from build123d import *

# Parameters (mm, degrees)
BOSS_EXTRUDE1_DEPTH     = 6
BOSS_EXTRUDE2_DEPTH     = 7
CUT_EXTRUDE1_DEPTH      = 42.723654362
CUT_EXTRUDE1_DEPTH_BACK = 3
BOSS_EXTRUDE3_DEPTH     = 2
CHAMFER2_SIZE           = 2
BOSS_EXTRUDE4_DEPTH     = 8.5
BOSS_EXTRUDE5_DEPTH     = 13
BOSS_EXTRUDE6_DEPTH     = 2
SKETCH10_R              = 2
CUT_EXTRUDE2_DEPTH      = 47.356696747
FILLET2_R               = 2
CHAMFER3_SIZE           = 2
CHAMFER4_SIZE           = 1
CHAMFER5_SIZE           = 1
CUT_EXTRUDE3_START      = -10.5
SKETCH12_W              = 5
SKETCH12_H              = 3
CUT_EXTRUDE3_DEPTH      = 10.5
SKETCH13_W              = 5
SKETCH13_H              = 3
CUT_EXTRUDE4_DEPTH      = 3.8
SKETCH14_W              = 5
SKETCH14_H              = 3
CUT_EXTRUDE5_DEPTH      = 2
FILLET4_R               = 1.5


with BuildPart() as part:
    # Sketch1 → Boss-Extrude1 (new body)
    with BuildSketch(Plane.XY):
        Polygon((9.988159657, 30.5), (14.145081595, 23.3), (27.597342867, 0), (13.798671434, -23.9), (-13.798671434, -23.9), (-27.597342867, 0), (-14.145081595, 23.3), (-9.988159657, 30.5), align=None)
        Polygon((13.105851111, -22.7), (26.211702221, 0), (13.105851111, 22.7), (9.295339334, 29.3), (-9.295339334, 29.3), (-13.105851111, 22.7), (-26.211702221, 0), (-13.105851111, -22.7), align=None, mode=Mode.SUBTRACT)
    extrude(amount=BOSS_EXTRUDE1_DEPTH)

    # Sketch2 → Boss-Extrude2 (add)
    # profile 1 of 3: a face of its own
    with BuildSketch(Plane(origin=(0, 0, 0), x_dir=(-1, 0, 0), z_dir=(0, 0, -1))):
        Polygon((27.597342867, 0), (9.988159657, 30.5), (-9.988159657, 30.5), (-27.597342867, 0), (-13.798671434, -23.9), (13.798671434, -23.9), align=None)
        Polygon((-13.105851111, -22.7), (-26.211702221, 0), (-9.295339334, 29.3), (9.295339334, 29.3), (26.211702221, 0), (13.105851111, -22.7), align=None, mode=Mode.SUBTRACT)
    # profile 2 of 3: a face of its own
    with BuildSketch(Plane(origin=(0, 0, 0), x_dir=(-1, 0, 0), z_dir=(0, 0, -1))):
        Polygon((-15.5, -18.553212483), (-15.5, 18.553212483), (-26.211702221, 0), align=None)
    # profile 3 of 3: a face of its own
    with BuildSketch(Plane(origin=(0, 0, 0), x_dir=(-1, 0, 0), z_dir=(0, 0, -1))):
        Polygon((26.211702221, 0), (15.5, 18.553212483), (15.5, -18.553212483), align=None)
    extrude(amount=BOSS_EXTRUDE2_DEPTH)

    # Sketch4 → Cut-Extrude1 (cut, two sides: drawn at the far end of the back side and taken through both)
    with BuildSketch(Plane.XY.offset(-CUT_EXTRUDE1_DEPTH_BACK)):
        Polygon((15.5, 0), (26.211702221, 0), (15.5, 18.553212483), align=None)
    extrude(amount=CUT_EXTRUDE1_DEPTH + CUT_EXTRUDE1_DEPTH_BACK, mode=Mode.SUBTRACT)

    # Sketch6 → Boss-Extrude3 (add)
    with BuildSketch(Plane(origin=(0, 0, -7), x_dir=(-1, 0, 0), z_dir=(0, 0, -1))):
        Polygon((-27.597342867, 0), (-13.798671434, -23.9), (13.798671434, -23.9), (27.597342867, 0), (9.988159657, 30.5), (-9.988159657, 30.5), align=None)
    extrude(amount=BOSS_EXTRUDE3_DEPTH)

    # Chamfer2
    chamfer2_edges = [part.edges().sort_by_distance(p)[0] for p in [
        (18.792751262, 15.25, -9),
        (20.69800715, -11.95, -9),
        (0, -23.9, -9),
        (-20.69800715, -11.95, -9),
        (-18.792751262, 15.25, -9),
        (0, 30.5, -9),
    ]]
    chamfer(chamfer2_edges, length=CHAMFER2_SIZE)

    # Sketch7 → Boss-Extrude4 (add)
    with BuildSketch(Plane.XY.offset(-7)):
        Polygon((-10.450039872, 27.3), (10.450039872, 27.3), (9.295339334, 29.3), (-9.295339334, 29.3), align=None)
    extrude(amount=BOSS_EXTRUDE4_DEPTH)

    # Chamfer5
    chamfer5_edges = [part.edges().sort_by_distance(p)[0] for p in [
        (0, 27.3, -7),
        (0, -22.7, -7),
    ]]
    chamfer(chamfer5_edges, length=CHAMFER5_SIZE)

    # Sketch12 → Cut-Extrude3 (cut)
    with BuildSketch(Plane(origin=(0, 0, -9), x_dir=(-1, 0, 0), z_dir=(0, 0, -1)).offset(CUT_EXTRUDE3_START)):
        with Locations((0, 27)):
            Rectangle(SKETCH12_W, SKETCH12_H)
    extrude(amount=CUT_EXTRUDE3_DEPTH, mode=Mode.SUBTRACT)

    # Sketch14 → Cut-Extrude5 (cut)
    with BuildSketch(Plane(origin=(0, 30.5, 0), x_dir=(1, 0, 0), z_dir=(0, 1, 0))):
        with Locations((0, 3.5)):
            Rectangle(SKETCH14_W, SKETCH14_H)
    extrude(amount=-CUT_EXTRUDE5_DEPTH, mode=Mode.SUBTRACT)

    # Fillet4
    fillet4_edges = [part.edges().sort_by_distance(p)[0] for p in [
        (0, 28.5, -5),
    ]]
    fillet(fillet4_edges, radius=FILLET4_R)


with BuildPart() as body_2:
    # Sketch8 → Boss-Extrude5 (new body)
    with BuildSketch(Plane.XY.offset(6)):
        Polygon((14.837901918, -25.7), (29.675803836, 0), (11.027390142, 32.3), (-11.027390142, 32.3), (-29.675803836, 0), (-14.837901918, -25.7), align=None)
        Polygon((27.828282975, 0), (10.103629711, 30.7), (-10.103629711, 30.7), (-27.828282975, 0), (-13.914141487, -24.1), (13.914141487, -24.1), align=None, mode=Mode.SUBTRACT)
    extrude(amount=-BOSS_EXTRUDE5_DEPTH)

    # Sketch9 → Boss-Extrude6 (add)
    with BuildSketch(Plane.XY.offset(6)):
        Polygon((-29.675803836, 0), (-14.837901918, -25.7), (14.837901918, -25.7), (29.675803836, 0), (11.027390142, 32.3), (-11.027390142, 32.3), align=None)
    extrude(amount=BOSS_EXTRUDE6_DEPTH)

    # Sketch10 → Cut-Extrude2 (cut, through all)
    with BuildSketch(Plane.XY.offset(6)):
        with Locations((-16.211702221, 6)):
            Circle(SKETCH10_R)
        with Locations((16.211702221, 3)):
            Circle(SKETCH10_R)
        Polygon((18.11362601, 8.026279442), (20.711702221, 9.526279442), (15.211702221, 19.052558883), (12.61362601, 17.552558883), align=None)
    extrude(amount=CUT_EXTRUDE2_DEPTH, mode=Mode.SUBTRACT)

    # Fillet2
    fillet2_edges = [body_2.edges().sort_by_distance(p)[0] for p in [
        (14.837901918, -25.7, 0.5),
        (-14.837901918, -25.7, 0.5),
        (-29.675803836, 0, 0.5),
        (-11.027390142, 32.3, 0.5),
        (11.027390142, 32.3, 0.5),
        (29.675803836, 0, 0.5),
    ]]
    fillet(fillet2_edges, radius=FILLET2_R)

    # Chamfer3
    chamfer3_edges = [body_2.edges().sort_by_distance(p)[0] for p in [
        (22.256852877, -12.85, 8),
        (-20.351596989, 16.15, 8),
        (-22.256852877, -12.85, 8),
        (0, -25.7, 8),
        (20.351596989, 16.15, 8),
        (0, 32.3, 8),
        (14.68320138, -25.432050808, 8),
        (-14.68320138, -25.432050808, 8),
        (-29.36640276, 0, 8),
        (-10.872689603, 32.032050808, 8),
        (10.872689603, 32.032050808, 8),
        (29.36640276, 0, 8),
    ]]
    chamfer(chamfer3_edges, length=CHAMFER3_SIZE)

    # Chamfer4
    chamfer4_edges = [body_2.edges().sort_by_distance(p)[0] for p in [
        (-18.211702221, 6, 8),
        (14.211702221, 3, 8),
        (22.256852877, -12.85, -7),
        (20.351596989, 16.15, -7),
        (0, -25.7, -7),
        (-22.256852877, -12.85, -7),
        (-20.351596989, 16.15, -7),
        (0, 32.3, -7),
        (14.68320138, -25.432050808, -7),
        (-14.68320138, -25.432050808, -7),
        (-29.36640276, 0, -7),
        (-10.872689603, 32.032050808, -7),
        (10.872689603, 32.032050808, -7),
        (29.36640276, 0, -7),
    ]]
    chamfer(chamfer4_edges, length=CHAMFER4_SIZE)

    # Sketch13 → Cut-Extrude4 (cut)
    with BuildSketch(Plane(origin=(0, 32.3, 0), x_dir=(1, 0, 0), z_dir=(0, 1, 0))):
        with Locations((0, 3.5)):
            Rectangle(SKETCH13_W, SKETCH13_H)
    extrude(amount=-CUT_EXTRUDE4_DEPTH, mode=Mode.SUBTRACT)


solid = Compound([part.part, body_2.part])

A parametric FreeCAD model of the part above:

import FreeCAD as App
import Part
import Sketcher
Q = App.Units.Quantity


def edges_at(feature, points):
    """Names of the edges that pass closest to the given points."""
    edges = feature.Shape.Edges
    near = lambda p: min(range(len(edges)), key=lambda i: edges[i].distToShape(Part.Vertex(*p))[0])
    return sorted({f"Edge{near(p) + 1}" for p in points})

doc = App.newDocument("Part")
body = doc.addObject("PartDesign::Body", "Body")

sketch1 = doc.addObject("Sketcher::SketchObject", "Sketch")
body.addObject(sketch1)
sketch1.AttachmentSupport = (doc.XY_Plane, [""])
sketch1.MapMode = "FlatFace"
sketch1.addGeometry([
    Part.LineSegment(App.Vector(14, 23, 0), App.Vector(10, 30, 0)),
    Part.LineSegment(App.Vector(10, 30, 0), App.Vector(-10, 30, 0)),
    Part.LineSegment(App.Vector(-10, 30, 0), App.Vector(-14, 23, 0)),
    Part.LineSegment(App.Vector(-14, 23, 0), App.Vector(-28, 0, 0)),
    Part.LineSegment(App.Vector(-28, 0, 0), App.Vector(-14, -24, 0)),
    Part.LineSegment(App.Vector(-14, -24, 0), App.Vector(14, -24, 0)),
    Part.LineSegment(App.Vector(14, -24, 0), App.Vector(28, 0, 0)),
    Part.LineSegment(App.Vector(28, 0, 0), App.Vector(14, 23, 0)),
    Part.LineSegment(App.Vector(13, -23, 0), App.Vector(-13, -23, 0)),
    Part.LineSegment(App.Vector(-13, -23, 0), App.Vector(-26, 0, 0)),
    Part.LineSegment(App.Vector(-26, 0, 0), App.Vector(-13, 23, 0)),
    Part.LineSegment(App.Vector(-13, 23, 0), App.Vector(-9, 29, 0)),
    Part.LineSegment(App.Vector(-9, 29, 0), App.Vector(9, 29, 0)),
    Part.LineSegment(App.Vector(9, 29, 0), App.Vector(13, 23, 0)),
    Part.LineSegment(App.Vector(13, 23, 0), App.Vector(26, 0, 0)),
    Part.LineSegment(App.Vector(26, 0, 0), App.Vector(13, -23, 0)),
], False)
sketch1.addConstraint([
    Sketcher.Constraint("Coincident", 0, 2, 1, 1),
    Sketcher.Constraint("Coincident", 1, 2, 2, 1),
    Sketcher.Constraint("Coincident", 2, 2, 3, 1),
    Sketcher.Constraint("Coincident", 3, 2, 4, 1),
    Sketcher.Constraint("Coincident", 4, 2, 5, 1),
    Sketcher.Constraint("Coincident", 5, 2, 6, 1),
    Sketcher.Constraint("Coincident", 6, 2, 7, 1),
    Sketcher.Constraint("Coincident", 7, 2, 0, 1),
    Sketcher.Constraint("Coincident", 8, 2, 9, 1),
    Sketcher.Constraint("Coincident", 9, 2, 10, 1),
    Sketcher.Constraint("Coincident", 10, 2, 11, 1),
    Sketcher.Constraint("Coincident", 11, 2, 12, 1),
    Sketcher.Constraint("Coincident", 12, 2, 13, 1),
    Sketcher.Constraint("Coincident", 13, 2, 14, 1),
    Sketcher.Constraint("Coincident", 14, 2, 15, 1),
    Sketcher.Constraint("Coincident", 15, 2, 8, 1),
    Sketcher.Constraint("Horizontal", 1),
    Sketcher.Constraint("Horizontal", 5),
    Sketcher.Constraint("Horizontal", 8),
    Sketcher.Constraint("Horizontal", 12),
    Sketcher.Constraint("Symmetric", 3, 2, 6, 2, -1, 1),
    Sketcher.Constraint("Symmetric", 8, 2, 13, 2, -1, 1),
    Sketcher.Constraint("Symmetric", 9, 2, 14, 2, -1, 1),
    Sketcher.Constraint("Symmetric", 10, 2, 15, 2, -1, 1),
    Sketcher.Constraint("Symmetric", 2, 2, 7, 2, -2),
    Sketcher.Constraint("PointOnObject", 3, 2, -1),
    Sketcher.Constraint("PointOnObject", 9, 2, -1),
    Sketcher.Constraint("Parallel", 2, 3),
    Sketcher.Constraint("Parallel", 0, 4),
    Sketcher.Constraint("Parallel", 3, 6),
    Sketcher.Constraint("Parallel", 4, 7),
    Sketcher.Constraint("Parallel", 7, 9),
    Sketcher.Constraint("Parallel", 6, 10),
    Sketcher.Constraint("Parallel", 10, 11),
    Sketcher.Constraint("Parallel", 9, 13),
    Sketcher.Constraint("Angle", 0, Q("120 deg")),
    Sketcher.Constraint("DistanceY", 8, 2, 2, 2, 46.0),
    Sketcher.Constraint("DistanceY", 2, 2, 11, 2, 6.0),
    Sketcher.Constraint("DistanceY", -1, 1, 0, 2, 30.5),
    Sketcher.Constraint("DistanceY", -1, 1, 2, 2, 23.3),
    Sketcher.Constraint("DistanceY", 4, 2, -1, 1, 23.9),
    Sketcher.Constraint("DistanceX", 1, 2, 1, 1, 19.976319),
    Sketcher.Constraint("DistanceX", 12, 1, 12, 2, 18.590679),
])
pad1 = doc.addObject("PartDesign::Pad", "Pad")
body.addObject(pad1)
pad1.Profile = sketch1
pad1.Length = 6

sketch2 = doc.addObject("Sketcher::SketchObject", "Sketch001")
body.addObject(sketch2)
sketch2.AttachmentSupport = (doc.XY_Plane, [""])
sketch2.MapMode = "FlatFace"
sketch2.addGeometry([
    Part.LineSegment(App.Vector(-27.6, 0, 0), App.Vector(-10, 30.5, 0)),
    Part.LineSegment(App.Vector(-10, 30.5, 0), App.Vector(10, 30.5, 0)),
    Part.LineSegment(App.Vector(10, 30.5, 0), App.Vector(27.6, 0, 0)),
    Part.LineSegment(App.Vector(27.6, 0, 0), App.Vector(13.8, -23.9, 0)),
    Part.LineSegment(App.Vector(13.8, -23.9, 0), App.Vector(-13.8, -23.9, 0)),
    Part.LineSegment(App.Vector(-13.8, -23.9, 0), App.Vector(-27.6, 0, 0)),
    Part.LineSegment(App.Vector(-13.1, -22.7, 0), App.Vector(13.1, -22.7, 0)),
    Part.LineSegment(App.Vector(13.1, -22.7, 0), App.Vector(15.5, -18.6, 0)),
    Part.LineSegment(App.Vector(15.5, -18.6, 0), App.Vector(15.5, 18.6, 0)),
    Part.LineSegment(App.Vector(15.5, 18.6, 0), App.Vector(9.3, 29.3, 0)),
    Part.LineSegment(App.Vector(9.3, 29.3, 0), App.Vector(-9.3, 29.3, 0)),
    Part.LineSegment(App.Vector(-9.3, 29.3, 0), App.Vector(-15.5, 18.6, 0)),
    Part.LineSegment(App.Vector(-15.5, 18.6, 0), App.Vector(-15.5, -18.6, 0)),
    Part.LineSegment(App.Vector(-15.5, -18.6, 0), App.Vector(-13.1, -22.7, 0)),
], False)
sketch2.addConstraint([
    Sketcher.Constraint("Coincident", 0, 2, 1, 1),
    Sketcher.Constraint("Coincident", 1, 2, 2, 1),
    Sketcher.Constraint("Coincident", 2, 2, 3, 1),
    Sketcher.Constraint("Coincident", 3, 2, 4, 1),
    Sketcher.Constraint("Coincident", 4, 2, 5, 1),
    Sketcher.Constraint("Coincident", 5, 2, 0, 1),
    Sketcher.Constraint("Coincident", 6, 2, 7, 1),
    Sketcher.Constraint("Coincident", 7, 2, 8, 1),
    Sketcher.Constraint("Coincident", 8, 2, 9, 1),
    Sketcher.Constraint("Coincident", 9, 2, 10, 1),
    Sketcher.Constraint("Coincident", 10, 2, 11, 1),
    Sketcher.Constraint("Coincident", 11, 2, 12, 1),
    Sketcher.Constraint("Coincident", 12, 2, 13, 1),
    Sketcher.Constraint("Coincident", 13, 2, 6, 1),
    Sketcher.Constraint("Horizontal", 1),
    Sketcher.Constraint("Horizontal", 4),
    Sketcher.Constraint("Horizontal", 6),
    Sketcher.Constraint("Vertical", 8),
    Sketcher.Constraint("Horizontal", 10),
    Sketcher.Constraint("Vertical", 12),
    Sketcher.Constraint("Symmetric", 2, 2, 5, 2, -1, 1),
    Sketcher.Constraint("Symmetric", 7, 2, 11, 2, -1, 1),
    Sketcher.Constraint("PointOnObject", 2, 2, -1),
    Sketcher.Constraint("Parallel", 0, 3),
    Sketcher.Constraint("Parallel", 2, 5),
    Sketcher.Constraint("Parallel", 3, 7),
    Sketcher.Constraint("Parallel", 5, 9),
    Sketcher.Constraint("Parallel", 7, 11),
    Sketcher.Constraint("Parallel", 9, 13),
    Sketcher.Constraint("Horizontal", 8, 2, 11, 2),
    Sketcher.Constraint("Horizontal", 7, 2, 12, 2),
    Sketcher.Constraint("Equal", 0, 2),
    Sketcher.Constraint("Angle", 0, Q("60 deg")),
    Sketcher.Constraint("DistanceX", 12, 2, 7, 2, 31.0),
    Sketcher.Constraint("DistanceY", -1, 1, 0, 2, 30.5),
    Sketcher.Constraint("DistanceY", 3, 2, -1, 1, 23.9),
    Sketcher.Constraint("DistanceY", 6, 2, -1, 1, 22.7),
    Sketcher.Constraint("DistanceY", -1, 1, 9, 2, 29.3),
    Sketcher.Constraint("DistanceX", 1, 1, 1, 2, 19.976319),
    Sketcher.Constraint("DistanceX", 10, 2, 10, 1, 18.590679),
])
pad2 = doc.addObject("PartDesign::Pad", "Pad001")
body.addObject(pad2)
pad2.Profile = sketch2
pad2.Length = 7
pad2.Reversed = True

sketch3 = doc.addObject("Sketcher::SketchObject", "Sketch002")
body.addObject(sketch3)
sketch3.AttachmentSupport = (doc.XY_Plane, [""])
sketch3.MapMode = "FlatFace"
sketch3.addGeometry([
    Part.LineSegment(App.Vector(16, 0, 0), App.Vector(26, 0, 0)),
    Part.LineSegment(App.Vector(26, 0, 0), App.Vector(16, 19, 0)),
    Part.LineSegment(App.Vector(16, 19, 0), App.Vector(16, 0, 0)),
], False)
sketch3.addConstraint([
    Sketcher.Constraint("Coincident", 0, 2, 1, 1),
    Sketcher.Constraint("Coincident", 1, 2, 2, 1),
    Sketcher.Constraint("Coincident", 2, 2, 0, 1),
    Sketcher.Constraint("Horizontal", 0),
    Sketcher.Constraint("Vertical", 2),
    Sketcher.Constraint("PointOnObject", 0, 2, -1),
    Sketcher.Constraint("Angle", 1, Q("120 deg")),
    Sketcher.Constraint("DistanceX", -1, 1, 1, 2, 15.5),
    Sketcher.Constraint("DistanceX", 0, 1, 0, 2, 10.711702),
])
pocket1 = doc.addObject("PartDesign::Pocket", "Pocket")
body.addObject(pocket1)
pocket1.Profile = sketch3
pocket1.Type = "TwoLengths"
pocket1.Length = 42.723654
pocket1.Length2 = 3
pocket1.Reversed = True

sketch4 = doc.addObject("Sketcher::SketchObject", "Sketch003")
body.addObject(sketch4)
sketch4.AttachmentSupport = (doc.XY_Plane, [""])
sketch4.MapMode = "FlatFace"
sketch4.AttachmentOffset = App.Placement(App.Vector(0, 0, -7), App.Rotation())
sketch4.addGeometry([
    Part.LineSegment(App.Vector(28, 0, 0), App.Vector(14, -24, 0)),
    Part.LineSegment(App.Vector(14, -24, 0), App.Vector(-14, -24, 0)),
    Part.LineSegment(App.Vector(-14, -24, 0), App.Vector(-28, 0, 0)),
    Part.LineSegment(App.Vector(-28, 0, 0), App.Vector(-10, 30, 0)),
    Part.LineSegment(App.Vector(-10, 30, 0), App.Vector(10, 30, 0)),
    Part.LineSegment(App.Vector(10, 30, 0), App.Vector(28, 0, 0)),
], False)
sketch4.addConstraint([
    Sketcher.Constraint("Coincident", 0, 2, 1, 1),
    Sketcher.Constraint("Coincident", 1, 2, 2, 1),
    Sketcher.Constraint("Coincident", 2, 2, 3, 1),
    Sketcher.Constraint("Coincident", 3, 2, 4, 1),
    Sketcher.Constraint("Coincident", 4, 2, 5, 1),
    Sketcher.Constraint("Coincident", 5, 2, 0, 1),
    Sketcher.Constraint("Horizontal", 1),
    Sketcher.Constraint("Horizontal", 4),
    Sketcher.Constraint("Symmetric", 2, 2, 5, 2, -1, 1),
    Sketcher.Constraint("PointOnObject", 2, 2, -1),
    Sketcher.Constraint("Parallel", 0, 3),
    Sketcher.Constraint("Parallel", 2, 5),
    Sketcher.Constraint("Equal", 0, 2),
    Sketcher.Constraint("Angle", 0, Q("-120 deg")),
    Sketcher.Constraint("DistanceY", 0, 2, -1, 1, 23.9),
    Sketcher.Constraint("DistanceY", -1, 1, 3, 2, 30.5),
    Sketcher.Constraint("DistanceX", 4, 1, 4, 2, 19.976319),
])
pad3 = doc.addObject("PartDesign::Pad", "Pad002")
body.addObject(pad3)
pad3.Profile = sketch4
pad3.Length = 2
pad3.Reversed = True
doc.recompute()

chamfer = doc.addObject("PartDesign::Chamfer", "Chamfer")
body.addObject(chamfer)
chamfer.Base = (pad3, edges_at(pad3, [
    (18.793, 15.25, -9),
    (20.698, -11.95, -9),
    (0, -23.9, -9),
    (-20.698, -11.95, -9),
    (-18.793, 15.25, -9),
    (0, 30.5, -9),
]))
chamfer.Size = 2

sketch5 = doc.addObject("Sketcher::SketchObject", "Sketch004")
body.addObject(sketch5)
sketch5.AttachmentSupport = (doc.XY_Plane, [""])
sketch5.MapMode = "FlatFace"
sketch5.AttachmentOffset = App.Placement(App.Vector(0, 0, -7), App.Rotation())
sketch5.addGeometry([
    Part.LineSegment(App.Vector(-10.5, 27.3, 0), App.Vector(10.5, 27.3, 0)),
    Part.LineSegment(App.Vector(10.5, 27.3, 0), App.Vector(9.3, 29.3, 0)),
    Part.LineSegment(App.Vector(9.3, 29.3, 0), App.Vector(-9.3, 29.3, 0)),
    Part.LineSegment(App.Vector(-9.3, 29.3, 0), App.Vector(-10.5, 27.3, 0)),
], False)
sketch5.addConstraint([
    Sketcher.Constraint("Coincident", 0, 2, 1, 1),
    Sketcher.Constraint("Coincident", 1, 2, 2, 1),
    Sketcher.Constraint("Coincident", 2, 2, 3, 1),
    Sketcher.Constraint("Coincident", 3, 2, 0, 1),
    Sketcher.Constraint("Horizontal", 0),
    Sketcher.Constraint("Horizontal", 2),
    Sketcher.Constraint("Equal", 1, 3),
    Sketcher.Constraint("Angle", 1, Q("120 deg")),
    Sketcher.Constraint("DistanceY", 0, 2, 1, 2, 2.0),
    Sketcher.Constraint("DistanceY", -1, 1, 0, 2, 27.3),
    Sketcher.Constraint("DistanceX", 0, 1, 0, 2, 20.90008),
    Sketcher.Constraint("DistanceX", -1, 1, 0, 2, 10.45004),
])
pad4 = doc.addObject("PartDesign::Pad", "Pad003")
body.addObject(pad4)
pad4.Profile = sketch5
pad4.Length = 8.5
doc.recompute()

chamfer2 = doc.addObject("PartDesign::Chamfer", "Chamfer001")
body.addObject(chamfer2)
chamfer2.Base = (pad4, edges_at(pad4, [(0, 27.3, -7), (0, -22.7, -7)]))
chamfer2.Size = 1

sketch6 = doc.addObject("Sketcher::SketchObject", "Sketch005")
body.addObject(sketch6)
sketch6.AttachmentSupport = (doc.XY_Plane, [""])
sketch6.MapMode = "FlatFace"
sketch6.AttachmentOffset = App.Placement(App.Vector(0, 0, 1.5), App.Rotation())
sketch6.addGeometry([
    Part.LineSegment(App.Vector(2.5, 28.5, 0), App.Vector(2.5, 25.5, 0)),
    Part.LineSegment(App.Vector(2.5, 25.5, 0), App.Vector(-2.5, 25.5, 0)),
    Part.LineSegment(App.Vector(-2.5, 25.5, 0), App.Vector(-2.5, 28.5, 0)),
    Part.LineSegment(App.Vector(-2.5, 28.5, 0), App.Vector(2.5, 28.5, 0)),
], False)
sketch6.addConstraint([
    Sketcher.Constraint("Coincident", 0, 2, 1, 1),
    Sketcher.Constraint("Coincident", 1, 2, 2, 1),
    Sketcher.Constraint("Coincident", 2, 2, 3, 1),
    Sketcher.Constraint("Coincident", 3, 2, 0, 1),
    Sketcher.Constraint("Vertical", 0),
    Sketcher.Constraint("Horizontal", 1),
    Sketcher.Constraint("Vertical", 2),
    Sketcher.Constraint("Horizontal", 3),
    Sketcher.Constraint("DistanceX", 1, 2, 1, 1, 5.0),
    Sketcher.Constraint("DistanceY", 0, 2, 0, 1, 3.0),
    Sketcher.Constraint("DistanceX", -1, 1, 0, 2, 2.5),
    Sketcher.Constraint("DistanceY", -1, 1, 0, 2, 25.5),
])
pocket2 = doc.addObject("PartDesign::Pocket", "Pocket001")
body.addObject(pocket2)
pocket2.Profile = sketch6
pocket2.Length = 10.5

sketch7 = doc.addObject("Sketcher::SketchObject", "Sketch006")
body.addObject(sketch7)
sketch7.AttachmentSupport = (doc.XZ_Plane, [""])
sketch7.MapMode = "FlatFace"
sketch7.AttachmentOffset = App.Placement(App.Vector(0, 0, -30.5), App.Rotation())
sketch7.addGeometry([
    Part.LineSegment(App.Vector(-2.5, -5, 0), App.Vector(-2.5, -2, 0)),
    Part.LineSegment(App.Vector(-2.5, -2, 0), App.Vector(2.5, -2, 0)),
    Part.LineSegment(App.Vector(2.5, -2, 0), App.Vector(2.5, -5, 0)),
    Part.LineSegment(App.Vector(2.5, -5, 0), App.Vector(-2.5, -5, 0)),
], False)
sketch7.addConstraint([
    Sketcher.Constraint("Coincident", 0, 2, 1, 1),
    Sketcher.Constraint("Coincident", 1, 2, 2, 1),
    Sketcher.Constraint("Coincident", 2, 2, 3, 1),
    Sketcher.Constraint("Coincident", 3, 2, 0, 1),
    Sketcher.Constraint("Vertical", 0),
    Sketcher.Constraint("Horizontal", 1),
    Sketcher.Constraint("Vertical", 2),
    Sketcher.Constraint("Horizontal", 3),
    Sketcher.Constraint("DistanceX", 1, 1, 1, 2, 5.0),
    Sketcher.Constraint("DistanceY", 0, 1, 0, 2, 3.0),
    Sketcher.Constraint("DistanceY", 0, 2, -1, 1, 2.0),
    Sketcher.Constraint("DistanceX", 0, 2, -1, 1, 2.5),
])
pocket3 = doc.addObject("PartDesign::Pocket", "Pocket002")
body.addObject(pocket3)
pocket3.Profile = sketch7
pocket3.Length = 2
pocket3.Reversed = True
doc.recompute()

fillet = doc.addObject("PartDesign::Fillet", "Fillet")
body.addObject(fillet)
fillet.Base = (pocket3, edges_at(pocket3, [(0, 28.5, -5)]))
fillet.Radius = 1.5
body2 = doc.addObject("PartDesign::Body", "Body001")

sketch8 = doc.addObject("Sketcher::SketchObject", "Sketch007")
body2.addObject(sketch8)
sketch8.AttachmentSupport = (doc.getObject("XY_Plane001"), [""])
sketch8.MapMode = "FlatFace"
sketch8.AttachmentOffset = App.Placement(App.Vector(0, 0, 6), App.Rotation())
sketch8.addGeometry([
    Part.LineSegment(App.Vector(15, -26, 0), App.Vector(30, 0, 0)),
    Part.LineSegment(App.Vector(30, 0, 0), App.Vector(11, 32, 0)),
    Part.LineSegment(App.Vector(11, 32, 0), App.Vector(-11, 32, 0)),
    Part.LineSegment(App.Vector(-11, 32, 0), App.Vector(-30, 0, 0)),
    Part.LineSegment(App.Vector(-30, 0, 0), App.Vector(-15, -26, 0)),
    Part.LineSegment(App.Vector(-15, -26, 0), App.Vector(15, -26, 0)),
    Part.LineSegment(App.Vector(10, 31, 0), App.Vector(28, 0, 0)),
    Part.LineSegment(App.Vector(28, 0, 0), App.Vector(14, -24, 0)),
    Part.LineSegment(App.Vector(14, -24, 0), App.Vector(-14, -24, 0)),
    Part.LineSegment(App.Vector(-14, -24, 0), App.Vector(-28, 0, 0)),
    Part.LineSegment(App.Vector(-28, 0, 0), App.Vector(-10, 31, 0)),
    Part.LineSegment(App.Vector(-10, 31, 0), App.Vector(10, 31, 0)),
], False)
sketch8.addConstraint([
    Sketcher.Constraint("Coincident", 0, 2, 1, 1),
    Sketcher.Constraint("Coincident", 1, 2, 2, 1),
    Sketcher.Constraint("Coincident", 2, 2, 3, 1),
    Sketcher.Constraint("Coincident", 3, 2, 4, 1),
    Sketcher.Constraint("Coincident", 4, 2, 5, 1),
    Sketcher.Constraint("Coincident", 5, 2, 0, 1),
    Sketcher.Constraint("Coincident", 6, 2, 7, 1),
    Sketcher.Constraint("Coincident", 7, 2, 8, 1),
    Sketcher.Constraint("Coincident", 8, 2, 9, 1),
    Sketcher.Constraint("Coincident", 9, 2, 10, 1),
    Sketcher.Constraint("Coincident", 10, 2, 11, 1),
    Sketcher.Constraint("Coincident", 11, 2, 6, 1),
    Sketcher.Constraint("Horizontal", 2),
    Sketcher.Constraint("Horizontal", 5),
    Sketcher.Constraint("Horizontal", 8),
    Sketcher.Constraint("Horizontal", 11),
    Sketcher.Constraint("Symmetric", 0, 2, 3, 2, -1, 1),
    Sketcher.Constraint("Symmetric", 6, 2, 9, 2, -1, 1),
    Sketcher.Constraint("PointOnObject", 0, 2, -1),
    Sketcher.Constraint("PointOnObject", 6, 2, -1),
    Sketcher.Constraint("Parallel", 0, 3),
    Sketcher.Constraint("Parallel", 1, 4),
    Sketcher.Constraint("Parallel", 4, 6),
    Sketcher.Constraint("Parallel", 3, 7),
    Sketcher.Constraint("Parallel", 6, 9),
    Sketcher.Constraint("Parallel", 7, 10),
    Sketcher.Constraint("Equal", 1, 3),
    Sketcher.Constraint("Angle", 0, Q("60 deg")),
    Sketcher.Constraint("DistanceY", 4, 2, 2, 2, 58.0),
    Sketcher.Constraint("DistanceY", -1, 1, 1, 2, 32.3),
    Sketcher.Constraint("DistanceY", 7, 2, -1, 1, 24.1),
    Sketcher.Constraint("DistanceY", -1, 1, 10, 2, 30.7),
    Sketcher.Constraint("DistanceX", 2, 2, 2, 1, 22.05478),
    Sketcher.Constraint("DistanceX", 11, 1, 11, 2, 20.207259),
])
pad5 = doc.addObject("PartDesign::Pad", "Pad004")
body2.addObject(pad5)
pad5.Profile = sketch8
pad5.Length = 13
pad5.Reversed = True

sketch9 = doc.addObject("Sketcher::SketchObject", "Sketch008")
body2.addObject(sketch9)
sketch9.AttachmentSupport = (doc.getObject("XY_Plane001"), [""])
sketch9.MapMode = "FlatFace"
sketch9.AttachmentOffset = App.Placement(App.Vector(0, 0, 6), App.Rotation())
sketch9.addGeometry([
    Part.LineSegment(App.Vector(-30, 0, 0), App.Vector(-15, -26, 0)),
    Part.LineSegment(App.Vector(-15, -26, 0), App.Vector(15, -26, 0)),
    Part.LineSegment(App.Vector(15, -26, 0), App.Vector(30, 0, 0)),
    Part.LineSegment(App.Vector(30, 0, 0), App.Vector(11, 32, 0)),
    Part.LineSegment(App.Vector(11, 32, 0), App.Vector(-11, 32, 0)),
    Part.LineSegment(App.Vector(-11, 32, 0), App.Vector(-30, 0, 0)),
], False)
sketch9.addConstraint([
    Sketcher.Constraint("Coincident", 0, 2, 1, 1),
    Sketcher.Constraint("Coincident", 1, 2, 2, 1),
    Sketcher.Constraint("Coincident", 2, 2, 3, 1),
    Sketcher.Constraint("Coincident", 3, 2, 4, 1),
    Sketcher.Constraint("Coincident", 4, 2, 5, 1),
    Sketcher.Constraint("Coincident", 5, 2, 0, 1),
    Sketcher.Constraint("Horizontal", 1),
    Sketcher.Constraint("Horizontal", 4),
    Sketcher.Constraint("Symmetric", 2, 2, 5, 2, -1, 1),
    Sketcher.Constraint("PointOnObject", 2, 2, -1),
    Sketcher.Constraint("Parallel", 0, 3),
    Sketcher.Constraint("Parallel", 2, 5),
    Sketcher.Constraint("Equal", 0, 2),
    Sketcher.Constraint("Angle", 0, Q("-60 deg")),
    Sketcher.Constraint("DistanceY", 1, 2, 3, 2, 58.0),
    Sketcher.Constraint("DistanceY", 0, 2, -1, 1, 25.7),
    Sketcher.Constraint("DistanceX", 4, 2, 4, 1, 22.05478),
])
pad6 = doc.addObject("PartDesign::Pad", "Pad005")
body2.addObject(pad6)
pad6.Profile = sketch9
pad6.Length = 2

sketch10 = doc.addObject("Sketcher::SketchObject", "Sketch009")
body2.addObject(sketch10)
sketch10.AttachmentSupport = (doc.getObject("XY_Plane001"), [""])
sketch10.MapMode = "FlatFace"
sketch10.AttachmentOffset = App.Placement(App.Vector(0, 0, 6), App.Rotation())
sketch10.addGeometry([
    Part.Circle(App.Vector(-16.2, 6, 0), App.Vector(0, 0, 1), 2),
    Part.Circle(App.Vector(16.2, 3, 0), App.Vector(0, 0, 1), 2),
    Part.LineSegment(App.Vector(18.1, 8, 0), App.Vector(20.7, 9.5, 0)),
    Part.LineSegment(App.Vector(20.7, 9.5, 0), App.Vector(15.2, 19.1, 0)),
    Part.LineSegment(App.Vector(15.2, 19.1, 0), App.Vector(12.6, 17.6, 0)),
    Part.LineSegment(App.Vector(12.6, 17.6, 0), App.Vector(18.1, 8, 0)),
], False)
sketch10.addConstraint([
    Sketcher.Constraint("Coincident", 2, 2, 3, 1),
    Sketcher.Constraint("Coincident", 3, 2, 4, 1),
    Sketcher.Constraint("Coincident", 4, 2, 5, 1),
    Sketcher.Constraint("Coincident", 5, 2, 2, 1),
    Sketcher.Constraint("Equal", 0, 1),
    Sketcher.Constraint("Perpendicular", 2, 3),
    Sketcher.Constraint("Perpendicular", 3, 4),
    Sketcher.Constraint("Perpendicular", 4, 5),
    Sketcher.Constraint("Diameter", 0, 4.0),
    Sketcher.Constraint("Angle", 2, Q("30 deg")),
    Sketcher.Constraint("Distance", 2, 3.0),
    Sketcher.Constraint("Distance", 3, 11.0),
    Sketcher.Constraint("DistanceY", -1, 1, 0, 3, 6.0),
    Sketcher.Constraint("DistanceY", -1, 1, 1, 3, 3.0),
    Sketcher.Constraint("DistanceX", 3, 2, 1, 3, 1.0),
    Sketcher.Constraint("DistanceY", -1, 1, 2, 2, 9.526279),
    Sketcher.Constraint("DistanceX", 0, 3, 4, 2, 28.825328),
    Sketcher.Constraint("DistanceX", 0, 3, -1, 1, 16.211702),
])
pocket4 = doc.addObject("PartDesign::Pocket", "Pocket003")
body2.addObject(pocket4)
pocket4.Profile = sketch10
pocket4.Type = "ThroughAll"
pocket4.Reversed = True
doc.recompute()

fillet2 = doc.addObject("PartDesign::Fillet", "Fillet001")
body2.addObject(fillet2)
fillet2.Base = (pocket4, edges_at(pocket4, [
    (14.838, -25.7, 0.5),
    (-14.838, -25.7, 0.5),
    (-29.676, 0, 0.5),
    (-11.027, 32.3, 0.5),
    (11.027, 32.3, 0.5),
    (29.676, 0, 0.5),
]))
fillet2.Radius = 2
doc.recompute()

chamfer3 = doc.addObject("PartDesign::Chamfer", "Chamfer002")
body2.addObject(chamfer3)
chamfer3.Base = (fillet2, edges_at(fillet2, [
    (22.257, -12.85, 8),
    (-20.352, 16.15, 8),
    (-22.257, -12.85, 8),
    (0, -25.7, 8),
    (20.352, 16.15, 8),
    (0, 32.3, 8),
    (14.683, -25.432, 8),
    (-14.683, -25.432, 8),
    (-29.366, 0, 8),
    (-10.873, 32.032, 8),
    (10.873, 32.032, 8),
    (29.366, 0, 8),
]))
chamfer3.Size = 2
doc.recompute()

chamfer4 = doc.addObject("PartDesign::Chamfer", "Chamfer003")
body2.addObject(chamfer4)
chamfer4.Base = (chamfer3, edges_at(chamfer3, [
    (-18.212, 6, 8),
    (14.212, 3, 8),
    (22.257, -12.85, -7),
    (20.352, 16.15, -7),
    (0, -25.7, -7),
    (-22.257, -12.85, -7),
    (-20.352, 16.15, -7),
    (0, 32.3, -7),
    (14.683, -25.432, -7),
    (-14.683, -25.432, -7),
    (-29.366, 0, -7),
    (-10.873, 32.032, -7),
    (10.873, 32.032, -7),
    (29.366, 0, -7),
]))
chamfer4.Size = 1

sketch11 = doc.addObject("Sketcher::SketchObject", "Sketch010")
body2.addObject(sketch11)
sketch11.AttachmentSupport = (doc.getObject("XZ_Plane001"), [""])
sketch11.MapMode = "FlatFace"
sketch11.AttachmentOffset = App.Placement(App.Vector(0, 0, -32.3), App.Rotation())
sketch11.addGeometry([
    Part.LineSegment(App.Vector(-2.5, -5, 0), App.Vector(-2.5, -2, 0)),
    Part.LineSegment(App.Vector(-2.5, -2, 0), App.Vector(2.5, -2, 0)),
    Part.LineSegment(App.Vector(2.5, -2, 0), App.Vector(2.5, -5, 0)),
    Part.LineSegment(App.Vector(2.5, -5, 0), App.Vector(-2.5, -5, 0)),
], False)
sketch11.addConstraint([
    Sketcher.Constraint("Coincident", 0, 2, 1, 1),
    Sketcher.Constraint("Coincident", 1, 2, 2, 1),
    Sketcher.Constraint("Coincident", 2, 2, 3, 1),
    Sketcher.Constraint("Coincident", 3, 2, 0, 1),
    Sketcher.Constraint("Vertical", 0),
    Sketcher.Constraint("Horizontal", 1),
    Sketcher.Constraint("Vertical", 2),
    Sketcher.Constraint("Horizontal", 3),
    Sketcher.Constraint("DistanceX", 1, 1, 1, 2, 5.0),
    Sketcher.Constraint("DistanceY", 0, 1, 0, 2, 3.0),
    Sketcher.Constraint("DistanceY", 0, 2, -1, 1, 2.0),
    Sketcher.Constraint("DistanceX", 0, 2, -1, 1, 2.5),
])
pocket5 = doc.addObject("PartDesign::Pocket", "Pocket004")
body2.addObject(pocket5)
pocket5.Profile = sketch11
pocket5.Length = 3.8
pocket5.Reversed = True

doc.recompute()
